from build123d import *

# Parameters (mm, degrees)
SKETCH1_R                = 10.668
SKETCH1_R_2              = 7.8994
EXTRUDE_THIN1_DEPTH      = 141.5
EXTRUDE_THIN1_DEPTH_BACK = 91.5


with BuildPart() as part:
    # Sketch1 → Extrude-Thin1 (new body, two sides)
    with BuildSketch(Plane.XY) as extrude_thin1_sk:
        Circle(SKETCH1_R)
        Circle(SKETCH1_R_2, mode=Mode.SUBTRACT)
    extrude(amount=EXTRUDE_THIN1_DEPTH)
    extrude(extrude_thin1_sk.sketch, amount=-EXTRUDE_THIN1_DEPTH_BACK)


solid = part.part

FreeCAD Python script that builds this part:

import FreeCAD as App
import Part
import Sketcher
Q = App.Units.Quantity

doc = App.newDocument("Part")
body = doc.addObject("PartDesign::Body", "Body")

# Sketch on XY plane
sketch1 = body.newObject("Sketcher::SketchObject", "Sketch")
sketch1.AttachmentSupport = (doc.getObject("XY_Plane"), [""])
sketch1.MapMode = "FlatFace"
sketch1.addGeometry(Part.Circle(App.Vector(0, 0, 0), App.Vector(0, 0, 1), 11), False)
sketch1.addGeometry(Part.Circle(App.Vector(0, 0, 0), App.Vector(0, 0, 1), 8), False)
sketch1.addConstraint(Sketcher.Constraint("Coincident", 0, 3, -1, 1))
sketch1.addConstraint(Sketcher.Constraint("Coincident", 1, 3, -1, 1))
sketch1.addConstraint(Sketcher.Constraint("Diameter", 0, Q("0.84 in")))
sketch1.addConstraint(Sketcher.Constraint("Diameter", 1, Q("0.622 in")))
pad1 = body.newObject("PartDesign::Pad", "Pad")
pad1.Profile = sketch1
pad1.Type = "TwoLengths"
pad1.Length = 141.5
pad1.Length2 = 91.5

doc.recompute()
